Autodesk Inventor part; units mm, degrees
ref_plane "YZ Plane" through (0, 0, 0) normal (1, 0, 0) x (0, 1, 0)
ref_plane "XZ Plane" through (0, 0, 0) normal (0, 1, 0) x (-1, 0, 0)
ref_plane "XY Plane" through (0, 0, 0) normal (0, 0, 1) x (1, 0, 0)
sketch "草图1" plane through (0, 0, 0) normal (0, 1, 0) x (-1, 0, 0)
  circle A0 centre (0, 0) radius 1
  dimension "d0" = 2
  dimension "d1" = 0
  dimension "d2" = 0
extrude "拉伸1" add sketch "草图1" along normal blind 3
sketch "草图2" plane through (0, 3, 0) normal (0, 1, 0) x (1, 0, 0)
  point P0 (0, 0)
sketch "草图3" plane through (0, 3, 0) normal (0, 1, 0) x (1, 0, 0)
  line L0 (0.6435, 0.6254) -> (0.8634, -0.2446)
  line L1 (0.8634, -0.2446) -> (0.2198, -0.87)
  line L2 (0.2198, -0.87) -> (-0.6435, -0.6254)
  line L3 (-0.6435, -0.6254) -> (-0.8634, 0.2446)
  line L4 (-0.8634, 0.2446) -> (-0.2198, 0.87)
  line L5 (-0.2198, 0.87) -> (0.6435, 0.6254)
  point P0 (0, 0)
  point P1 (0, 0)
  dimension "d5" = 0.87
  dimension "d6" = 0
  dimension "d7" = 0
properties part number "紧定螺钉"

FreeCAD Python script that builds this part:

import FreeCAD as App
import Part
import Sketcher

V = App.Vector

doc = App.newDocument("Part")
body = doc.addObject("PartDesign::Body", "Body")

sketch1 = body.newObject("Sketcher::SketchObject", "Sketch")
sketch1.AttachmentSupport = (doc.getObject("XZ_Plane"), [""])
sketch1.MapMode = "FlatFace"
sketch1.addGeometry(Part.Circle(V(0, 0, 0), V(0, 0, 1), 1), False)
sketch1.addConstraint([
    Sketcher.Constraint("Coincident", 0, 3, -1, 1),
    Sketcher.Constraint("Diameter", 0, 2.0),
])
pad1 = body.newObject("PartDesign::Pad", "Pad")
pad1.Profile = sketch1
pad1.Length = 3
pad1.Reversed = True

doc.recompute()
